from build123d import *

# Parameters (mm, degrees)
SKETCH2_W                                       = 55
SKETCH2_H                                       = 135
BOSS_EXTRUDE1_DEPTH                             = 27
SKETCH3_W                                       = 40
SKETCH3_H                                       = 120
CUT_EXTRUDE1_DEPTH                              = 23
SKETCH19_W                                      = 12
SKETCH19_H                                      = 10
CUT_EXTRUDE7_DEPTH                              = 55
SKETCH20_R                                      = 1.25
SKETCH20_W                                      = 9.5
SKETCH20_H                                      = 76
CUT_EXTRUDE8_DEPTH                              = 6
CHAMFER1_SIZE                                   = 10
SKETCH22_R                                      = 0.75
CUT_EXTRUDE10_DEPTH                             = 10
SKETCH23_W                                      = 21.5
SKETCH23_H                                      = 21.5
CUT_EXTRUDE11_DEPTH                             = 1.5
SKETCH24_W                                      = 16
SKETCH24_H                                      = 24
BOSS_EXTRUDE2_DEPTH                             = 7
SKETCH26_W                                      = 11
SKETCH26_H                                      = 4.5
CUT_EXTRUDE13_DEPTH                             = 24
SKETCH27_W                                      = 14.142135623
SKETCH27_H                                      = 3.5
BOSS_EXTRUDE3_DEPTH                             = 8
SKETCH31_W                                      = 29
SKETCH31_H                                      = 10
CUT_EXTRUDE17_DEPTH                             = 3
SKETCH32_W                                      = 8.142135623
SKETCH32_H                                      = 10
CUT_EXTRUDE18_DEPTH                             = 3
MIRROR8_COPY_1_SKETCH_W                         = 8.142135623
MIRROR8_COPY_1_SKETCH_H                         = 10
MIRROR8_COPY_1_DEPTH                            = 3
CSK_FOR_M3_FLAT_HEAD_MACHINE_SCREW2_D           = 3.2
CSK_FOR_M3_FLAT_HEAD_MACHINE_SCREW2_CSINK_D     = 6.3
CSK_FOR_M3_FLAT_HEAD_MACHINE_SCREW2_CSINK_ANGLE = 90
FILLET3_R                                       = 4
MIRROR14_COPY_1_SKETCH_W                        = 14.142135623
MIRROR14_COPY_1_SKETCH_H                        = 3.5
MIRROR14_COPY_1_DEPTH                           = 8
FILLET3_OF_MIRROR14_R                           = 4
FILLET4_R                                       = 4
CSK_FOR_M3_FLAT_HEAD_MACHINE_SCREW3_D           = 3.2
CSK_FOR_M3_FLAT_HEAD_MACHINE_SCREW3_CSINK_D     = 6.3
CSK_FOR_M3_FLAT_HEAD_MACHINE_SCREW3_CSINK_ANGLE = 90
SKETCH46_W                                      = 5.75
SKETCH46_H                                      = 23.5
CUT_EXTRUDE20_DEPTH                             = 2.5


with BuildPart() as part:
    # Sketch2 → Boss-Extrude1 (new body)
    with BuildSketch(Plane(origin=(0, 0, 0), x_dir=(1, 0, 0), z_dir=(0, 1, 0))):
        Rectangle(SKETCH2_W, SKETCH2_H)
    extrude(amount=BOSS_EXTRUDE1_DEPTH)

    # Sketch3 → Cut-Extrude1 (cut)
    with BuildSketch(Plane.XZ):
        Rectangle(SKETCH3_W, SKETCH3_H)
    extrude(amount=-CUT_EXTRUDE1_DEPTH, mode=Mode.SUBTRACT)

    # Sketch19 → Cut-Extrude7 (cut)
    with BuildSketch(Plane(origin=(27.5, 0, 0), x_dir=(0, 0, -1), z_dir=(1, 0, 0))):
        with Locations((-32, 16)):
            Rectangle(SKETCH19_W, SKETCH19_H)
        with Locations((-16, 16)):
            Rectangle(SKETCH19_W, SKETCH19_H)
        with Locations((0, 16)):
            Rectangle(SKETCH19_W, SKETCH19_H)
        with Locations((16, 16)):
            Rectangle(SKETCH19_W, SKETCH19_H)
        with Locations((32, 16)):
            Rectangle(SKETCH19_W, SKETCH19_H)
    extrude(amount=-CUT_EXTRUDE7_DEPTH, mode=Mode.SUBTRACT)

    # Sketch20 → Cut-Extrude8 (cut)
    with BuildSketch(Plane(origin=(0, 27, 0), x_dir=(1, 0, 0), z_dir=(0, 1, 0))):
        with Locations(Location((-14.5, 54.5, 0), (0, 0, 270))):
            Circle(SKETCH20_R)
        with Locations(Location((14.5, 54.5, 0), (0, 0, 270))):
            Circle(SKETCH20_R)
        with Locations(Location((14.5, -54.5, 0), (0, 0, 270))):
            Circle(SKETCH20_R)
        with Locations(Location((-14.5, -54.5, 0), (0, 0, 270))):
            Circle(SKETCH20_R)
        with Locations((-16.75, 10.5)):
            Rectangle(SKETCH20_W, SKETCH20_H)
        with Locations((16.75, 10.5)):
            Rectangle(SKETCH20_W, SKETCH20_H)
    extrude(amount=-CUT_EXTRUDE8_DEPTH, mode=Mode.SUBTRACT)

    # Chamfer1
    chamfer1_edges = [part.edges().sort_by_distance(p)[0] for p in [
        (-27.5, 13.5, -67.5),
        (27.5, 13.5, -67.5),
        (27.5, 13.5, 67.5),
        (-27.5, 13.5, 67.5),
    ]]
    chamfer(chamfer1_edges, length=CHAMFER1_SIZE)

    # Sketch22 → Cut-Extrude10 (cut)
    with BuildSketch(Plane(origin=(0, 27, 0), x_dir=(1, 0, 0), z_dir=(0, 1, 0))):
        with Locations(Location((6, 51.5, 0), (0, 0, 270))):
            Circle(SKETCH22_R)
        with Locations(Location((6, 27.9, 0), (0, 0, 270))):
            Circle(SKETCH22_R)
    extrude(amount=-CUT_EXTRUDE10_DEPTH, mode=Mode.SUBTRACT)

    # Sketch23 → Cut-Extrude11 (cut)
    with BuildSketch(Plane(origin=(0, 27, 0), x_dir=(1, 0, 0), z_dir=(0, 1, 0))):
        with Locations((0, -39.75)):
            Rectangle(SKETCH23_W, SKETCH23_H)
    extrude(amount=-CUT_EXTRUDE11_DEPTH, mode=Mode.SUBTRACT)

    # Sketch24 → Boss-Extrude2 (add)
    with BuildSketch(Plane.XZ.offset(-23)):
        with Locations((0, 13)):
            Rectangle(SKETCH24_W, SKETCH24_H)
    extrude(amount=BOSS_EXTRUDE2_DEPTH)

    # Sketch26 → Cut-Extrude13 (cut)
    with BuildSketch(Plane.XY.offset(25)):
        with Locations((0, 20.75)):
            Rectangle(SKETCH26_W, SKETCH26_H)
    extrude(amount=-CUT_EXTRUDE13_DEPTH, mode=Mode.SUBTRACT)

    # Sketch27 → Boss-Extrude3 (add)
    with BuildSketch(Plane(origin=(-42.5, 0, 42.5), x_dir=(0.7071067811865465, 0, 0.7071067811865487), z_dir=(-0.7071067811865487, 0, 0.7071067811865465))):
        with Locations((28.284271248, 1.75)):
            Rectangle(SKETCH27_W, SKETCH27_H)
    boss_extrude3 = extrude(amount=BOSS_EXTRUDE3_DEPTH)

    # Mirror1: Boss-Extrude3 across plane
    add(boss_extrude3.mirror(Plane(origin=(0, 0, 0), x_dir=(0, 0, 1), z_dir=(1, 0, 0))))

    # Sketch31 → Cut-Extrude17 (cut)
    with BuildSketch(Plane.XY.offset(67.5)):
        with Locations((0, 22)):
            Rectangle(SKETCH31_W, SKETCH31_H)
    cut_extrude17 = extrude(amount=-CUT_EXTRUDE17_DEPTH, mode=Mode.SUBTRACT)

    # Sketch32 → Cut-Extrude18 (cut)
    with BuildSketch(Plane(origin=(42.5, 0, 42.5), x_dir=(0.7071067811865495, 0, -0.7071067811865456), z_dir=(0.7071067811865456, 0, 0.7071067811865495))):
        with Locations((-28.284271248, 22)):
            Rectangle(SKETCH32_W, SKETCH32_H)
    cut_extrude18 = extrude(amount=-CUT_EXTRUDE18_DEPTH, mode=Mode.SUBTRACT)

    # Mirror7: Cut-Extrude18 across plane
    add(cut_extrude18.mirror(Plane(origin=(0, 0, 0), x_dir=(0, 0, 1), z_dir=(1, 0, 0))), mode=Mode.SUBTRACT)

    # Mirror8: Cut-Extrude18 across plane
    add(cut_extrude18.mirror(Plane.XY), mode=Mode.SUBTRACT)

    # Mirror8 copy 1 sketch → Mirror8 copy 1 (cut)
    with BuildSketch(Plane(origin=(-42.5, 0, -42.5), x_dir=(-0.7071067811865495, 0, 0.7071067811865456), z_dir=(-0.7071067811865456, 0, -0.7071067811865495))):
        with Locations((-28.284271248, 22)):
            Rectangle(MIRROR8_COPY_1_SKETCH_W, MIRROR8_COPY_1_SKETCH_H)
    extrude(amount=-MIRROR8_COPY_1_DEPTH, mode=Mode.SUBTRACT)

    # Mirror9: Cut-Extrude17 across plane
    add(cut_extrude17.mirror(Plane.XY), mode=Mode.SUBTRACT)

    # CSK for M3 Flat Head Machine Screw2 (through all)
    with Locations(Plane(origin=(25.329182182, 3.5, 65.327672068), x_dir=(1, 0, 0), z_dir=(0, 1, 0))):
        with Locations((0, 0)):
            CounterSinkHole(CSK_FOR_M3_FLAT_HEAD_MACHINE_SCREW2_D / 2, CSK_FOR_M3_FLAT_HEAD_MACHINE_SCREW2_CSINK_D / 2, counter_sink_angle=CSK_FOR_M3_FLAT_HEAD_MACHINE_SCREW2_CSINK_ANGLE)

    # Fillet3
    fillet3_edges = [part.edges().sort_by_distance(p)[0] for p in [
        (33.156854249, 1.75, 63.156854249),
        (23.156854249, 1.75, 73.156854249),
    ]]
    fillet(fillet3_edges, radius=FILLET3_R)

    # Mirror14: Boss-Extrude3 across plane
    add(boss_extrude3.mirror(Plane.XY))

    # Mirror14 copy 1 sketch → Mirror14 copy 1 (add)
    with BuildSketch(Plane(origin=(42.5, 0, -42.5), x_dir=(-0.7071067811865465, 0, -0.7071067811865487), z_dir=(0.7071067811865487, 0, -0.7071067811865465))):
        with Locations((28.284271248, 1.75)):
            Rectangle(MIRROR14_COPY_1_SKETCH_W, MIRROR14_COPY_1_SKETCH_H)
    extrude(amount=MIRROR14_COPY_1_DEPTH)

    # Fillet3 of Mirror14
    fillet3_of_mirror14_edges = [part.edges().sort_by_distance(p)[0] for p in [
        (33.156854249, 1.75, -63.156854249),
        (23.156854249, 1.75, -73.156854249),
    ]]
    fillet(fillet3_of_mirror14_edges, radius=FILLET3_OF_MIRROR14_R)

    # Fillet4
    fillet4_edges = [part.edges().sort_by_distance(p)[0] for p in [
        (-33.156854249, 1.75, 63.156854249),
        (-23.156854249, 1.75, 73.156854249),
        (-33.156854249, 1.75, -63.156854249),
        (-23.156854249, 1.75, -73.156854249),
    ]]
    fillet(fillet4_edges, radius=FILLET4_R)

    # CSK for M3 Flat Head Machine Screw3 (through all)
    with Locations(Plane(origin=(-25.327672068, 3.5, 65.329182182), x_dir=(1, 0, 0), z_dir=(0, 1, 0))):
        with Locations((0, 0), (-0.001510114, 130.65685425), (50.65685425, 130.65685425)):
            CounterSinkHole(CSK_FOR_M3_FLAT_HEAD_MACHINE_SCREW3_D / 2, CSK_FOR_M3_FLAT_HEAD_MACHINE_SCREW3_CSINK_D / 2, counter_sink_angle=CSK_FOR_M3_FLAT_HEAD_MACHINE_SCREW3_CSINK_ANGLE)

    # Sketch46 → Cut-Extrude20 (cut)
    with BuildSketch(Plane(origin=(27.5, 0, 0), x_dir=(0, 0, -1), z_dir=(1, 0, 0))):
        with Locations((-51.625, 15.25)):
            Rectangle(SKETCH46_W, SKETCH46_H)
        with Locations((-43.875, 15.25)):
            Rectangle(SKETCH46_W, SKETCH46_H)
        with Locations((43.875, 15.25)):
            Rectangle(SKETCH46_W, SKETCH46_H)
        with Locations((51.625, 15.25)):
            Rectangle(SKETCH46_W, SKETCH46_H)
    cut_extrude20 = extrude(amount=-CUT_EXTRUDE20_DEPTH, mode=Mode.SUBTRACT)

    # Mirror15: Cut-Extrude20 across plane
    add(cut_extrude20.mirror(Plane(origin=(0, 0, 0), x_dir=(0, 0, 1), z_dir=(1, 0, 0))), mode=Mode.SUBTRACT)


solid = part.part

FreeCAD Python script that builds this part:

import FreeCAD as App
import Part
import Sketcher
Q = App.Units.Quantity


def edges_at(feature, points):
    """Names of the edges that pass closest to the given points."""
    edges = feature.Shape.Edges
    near = lambda p: min(range(len(edges)), key=lambda i: edges[i].distToShape(Part.Vertex(*p))[0])
    return sorted({f"Edge{near(p) + 1}" for p in points})

doc = App.newDocument("Part")
body = doc.addObject("PartDesign::Body", "Body")

sketch1 = body.newObject("Sketcher::SketchObject", "Sketch")
sketch1.AttachmentSupport = (doc.getObject("XZ_Plane"), [""])
sketch1.MapMode = "FlatFace"
sketch1.addGeometry(Part.LineSegment(App.Vector(-28, -68, 0), App.Vector(-28, 68, 0)), False)
sketch1.addGeometry(Part.LineSegment(App.Vector(-28, 68, 0), App.Vector(28, 68, 0)), False)
sketch1.addGeometry(Part.LineSegment(App.Vector(28, 68, 0), App.Vector(28, -68, 0)), False)
sketch1.addGeometry(Part.LineSegment(App.Vector(28, -68, 0), App.Vector(-28, -68, 0)), False)
sketch1.addConstraint(Sketcher.Constraint("Coincident", 0, 2, 1, 1))
sketch1.addConstraint(Sketcher.Constraint("Coincident", 1, 2, 2, 1))
sketch1.addConstraint(Sketcher.Constraint("Coincident", 2, 2, 3, 1))
sketch1.addConstraint(Sketcher.Constraint("Coincident", 3, 2, 0, 1))
sketch1.addConstraint(Sketcher.Constraint("Vertical", 0))
sketch1.addConstraint(Sketcher.Constraint("Horizontal", 1))
sketch1.addConstraint(Sketcher.Constraint("Vertical", 2))
sketch1.addConstraint(Sketcher.Constraint("Horizontal", 3))
sketch1.addConstraint(Sketcher.Constraint("Symmetric", 0, 2, 2, 2, -1, 1))
sketch1.addConstraint(Sketcher.Constraint("DistanceX", 1, 1, 1, 2, Q("55 mm")))
sketch1.addConstraint(Sketcher.Constraint("DistanceY", 0, 1, 0, 2, Q("135 mm")))
pad1 = body.newObject("PartDesign::Pad", "Pad")
pad1.Profile = sketch1
pad1.Length = 27
pad1.Reversed = True

sketch2 = body.newObject("Sketcher::SketchObject", "Sketch001")
sketch2.AttachmentSupport = (doc.getObject("XZ_Plane"), [""])
sketch2.MapMode = "FlatFace"
sketch2.addGeometry(Part.LineSegment(App.Vector(-20, 60, 0), App.Vector(-20, -60, 0)), False)
sketch2.addGeometry(Part.LineSegment(App.Vector(-20, -60, 0), App.Vector(20, -60, 0)), False)
sketch2.addGeometry(Part.LineSegment(App.Vector(20, -60, 0), App.Vector(20, 60, 0)), False)
sketch2.addGeometry(Part.LineSegment(App.Vector(20, 60, 0), App.Vector(-20, 60, 0)), False)
sketch2.addConstraint(Sketcher.Constraint("Coincident", 0, 2, 1, 1))
sketch2.addConstraint(Sketcher.Constraint("Coincident", 1, 2, 2, 1))
sketch2.addConstraint(Sketcher.Constraint("Coincident", 2, 2, 3, 1))
sketch2.addConstraint(Sketcher.Constraint("Coincident", 3, 2, 0, 1))
sketch2.addConstraint(Sketcher.Constraint("Vertical", 0))
sketch2.addConstraint(Sketcher.Constraint("Horizontal", 1))
sketch2.addConstraint(Sketcher.Constraint("Vertical", 2))
sketch2.addConstraint(Sketcher.Constraint("Horizontal", 3))
sketch2.addConstraint(Sketcher.Constraint("Symmetric", 0, 2, 2, 2, -1, 1))
sketch2.addConstraint(Sketcher.Constraint("DistanceX", 1, 1, 1, 2, Q("40 mm")))
sketch2.addConstraint(Sketcher.Constraint("DistanceY", 0, 2, 0, 1, Q("120 mm")))
pocket1 = body.newObject("PartDesign::Pocket", "Pocket")
pocket1.Profile = sketch2
pocket1.Length = 23

sketch3 = body.newObject("Sketcher::SketchObject", "Sketch002")
sketch3.AttachmentSupport = (doc.getObject("YZ_Plane"), [""])
sketch3.MapMode = "FlatFace"
sketch3.AttachmentOffset = App.Placement(App.Vector(0, 0, 27.5), App.Rotation())
sketch3.addGeometry(Part.LineSegment(App.Vector(21, 38, 0), App.Vector(11, 38, 0)), False)
sketch3.addGeometry(Part.LineSegment(App.Vector(11, 38, 0), App.Vector(11, 26, 0)), False)
sketch3.addGeometry(Part.LineSegment(App.Vector(11, 26, 0), App.Vector(21, 26, 0)), False)
sketch3.addGeometry(Part.LineSegment(App.Vector(21, 26, 0), App.Vector(21, 38, 0)), False)
sketch3.addGeometry(Part.LineSegment(App.Vector(21, 22, 0), App.Vector(11, 22, 0)), False)
sketch3.addGeometry(Part.LineSegment(App.Vector(11, 22, 0), App.Vector(11, 10, 0)), False)
sketch3.addGeometry(Part.LineSegment(App.Vector(11, 10, 0), App.Vector(21, 10, 0)), False)
sketch3.addGeometry(Part.LineSegment(App.Vector(21, 10, 0), App.Vector(21, 22, 0)), False)
sketch3.addGeometry(Part.LineSegment(App.Vector(21, 6, 0), App.Vector(11, 6, 0)), False)
sketch3.addGeometry(Part.LineSegment(App.Vector(11, 6, 0), App.Vector(11, -6, 0)), False)
sketch3.addGeometry(Part.LineSegment(App.Vector(11, -6, 0), App.Vector(21, -6, 0)), False)
sketch3.addGeometry(Part.LineSegment(App.Vector(21, -6, 0), App.Vector(21, 6, 0)), False)
sketch3.addGeometry(Part.LineSegment(App.Vector(21, -10, 0), App.Vector(11, -10, 0)), False)
sketch3.addGeometry(Part.LineSegment(App.Vector(11, -10, 0), App.Vector(11, -22, 0)), False)
sketch3.addGeometry(Part.LineSegment(App.Vector(11, -22, 0), App.Vector(21, -22, 0)), False)
sketch3.addGeometry(Part.LineSegment(App.Vector(21, -22, 0), App.Vector(21, -10, 0)), False)
sketch3.addGeometry(Part.LineSegment(App.Vector(21, -26, 0), App.Vector(11, -26, 0)), False)
sketch3.addGeometry(Part.LineSegment(App.Vector(11, -26, 0), App.Vector(11, -38, 0)), False)
sketch3.addGeometry(Part.LineSegment(App.Vector(11, -38, 0), App.Vector(21, -38, 0)), False)
sketch3.addGeometry(Part.LineSegment(App.Vector(21, -38, 0), App.Vector(21, -26, 0)), False)
sketch3.addConstraint(Sketcher.Constraint("Coincident", 0, 2, 1, 1))
sketch3.addConstraint(Sketcher.Constraint("Coincident", 1, 2, 2, 1))
sketch3.addConstraint(Sketcher.Constraint("Coincident", 2, 2, 3, 1))
sketch3.addConstraint(Sketcher.Constraint("Coincident", 3, 2, 0, 1))
sketch3.addConstraint(Sketcher.Constraint("Coincident", 4, 2, 5, 1))
sketch3.addConstraint(Sketcher.Constraint("Coincident", 5, 2, 6, 1))
sketch3.addConstraint(Sketcher.Constraint("Coincident", 6, 2, 7, 1))
sketch3.addConstraint(Sketcher.Constraint("Coincident", 7, 2, 4, 1))
sketch3.addConstraint(Sketcher.Constraint("Coincident", 8, 2, 9, 1))
sketch3.addConstraint(Sketcher.Constraint("Coincident", 9, 2, 10, 1))
sketch3.addConstraint(Sketcher.Constraint("Coincident", 10, 2, 11, 1))
sketch3.addConstraint(Sketcher.Constraint("Coincident", 11, 2, 8, 1))
sketch3.addConstraint(Sketcher.Constraint("Coincident", 12, 2, 13, 1))
sketch3.addConstraint(Sketcher.Constraint("Coincident", 13, 2, 14, 1))
sketch3.addConstraint(Sketcher.Constraint("Coincident", 14, 2, 15, 1))
sketch3.addConstraint(Sketcher.Constraint("Coincident", 15, 2, 12, 1))
sketch3.addConstraint(Sketcher.Constraint("Coincident", 16, 2, 17, 1))
sketch3.addConstraint(Sketcher.Constraint("Coincident", 17, 2, 18, 1))
sketch3.addConstraint(Sketcher.Constraint("Coincident", 18, 2, 19, 1))
sketch3.addConstraint(Sketcher.Constraint("Coincident", 19, 2, 16, 1))
sketch3.addConstraint(Sketcher.Constraint("Horizontal", 0))
sketch3.addConstraint(Sketcher.Constraint("Vertical", 1))
sketch3.addConstraint(Sketcher.Constraint("Horizontal", 2))
sketch3.addConstraint(Sketcher.Constraint("Vertical", 3))
sketch3.addConstraint(Sketcher.Constraint("Horizontal", 4))
sketch3.addConstraint(Sketcher.Constraint("Vertical", 5))
sketch3.addConstraint(Sketcher.Constraint("Horizontal", 6))
sketch3.addConstraint(Sketcher.Constraint("Vertical", 7))
sketch3.addConstraint(Sketcher.Constraint("Horizontal", 8))
sketch3.addConstraint(Sketcher.Constraint("Vertical", 9))
sketch3.addConstraint(Sketcher.Constraint("Horizontal", 10))
sketch3.addConstraint(Sketcher.Constraint("Vertical", 11))
sketch3.addConstraint(Sketcher.Constraint("Horizontal", 12))
sketch3.addConstraint(Sketcher.Constraint("Vertical", 13))
sketch3.addConstraint(Sketcher.Constraint("Horizontal", 14))
sketch3.addConstraint(Sketcher.Constraint("Vertical", 15))
sketch3.addConstraint(Sketcher.Constraint("Horizontal", 16))
sketch3.addConstraint(Sketcher.Constraint("Vertical", 17))
sketch3.addConstraint(Sketcher.Constraint("Horizontal", 18))
sketch3.addConstraint(Sketcher.Constraint("Vertical", 19))
sketch3.addConstraint(Sketcher.Constraint("Symmetric", 5, 2, 12, 2, -1))
sketch3.addConstraint(Sketcher.Constraint("Symmetric", 7, 2, 14, 2, -1))
sketch3.addConstraint(Sketcher.Constraint("Symmetric", 1, 2, 16, 2, -1))
sketch3.addConstraint(Sketcher.Constraint("Symmetric", 3, 2, 18, 2, -1))
sketch3.addConstraint(Sketcher.Constraint("Vertical", 1, 2, 4, 2))
sketch3.addConstraint(Sketcher.Constraint("Vertical", 3, 2, 6, 2))
sketch3.addConstraint(Sketcher.Constraint("Vertical", 5, 2, 8, 2))
sketch3.addConstraint(Sketcher.Constraint("Vertical", 7, 2, 10, 2))
sketch3.addConstraint(Sketcher.Constraint("Equal", 3, 5))
sketch3.addConstraint(Sketcher.Constraint("Equal", 7, 9))
sketch3.addConstraint(Sketcher.Constraint("DistanceX", 0, 2, 0, 1, Q("10 mm")))
sketch3.addConstraint(Sketcher.Constraint("DistanceY", 1, 2, 1, 1, Q("12 mm")))
sketch3.addConstraint(Sketcher.Constraint("DistanceX", -1, 1, 0, 2, Q("11 mm")))
sketch3.addConstraint(Sketcher.Constraint("DistanceY", -1, 1, 0, 2, Q("38 mm")))
sketch3.addConstraint(Sketcher.Constraint("DistanceY", -1, 1, 4, 2, Q("22 mm")))
sketch3.addConstraint(Sketcher.Constraint("DistanceY", -1, 1, 8, 2, Q("6 mm")))
pocket2 = body.newObject("PartDesign::Pocket", "Pocket001")
pocket2.Profile = sketch3
pocket2.Length = 55

sketch4 = body.newObject("Sketcher::SketchObject", "Sketch003")
sketch4.AttachmentSupport = (doc.getObject("XZ_Plane"), [""])
sketch4.MapMode = "FlatFace"
sketch4.AttachmentOffset = App.Placement(App.Vector(0, 0, -27), App.Rotation())
sketch4.addGeometry(Part.Circle(App.Vector(-14.5, -54.5, 0), App.Vector(0, 0, 1), 1.2), False)
sketch4.addGeometry(Part.Circle(App.Vector(14.5, -54.5, 0), App.Vector(0, 0, 1), 1.2), False)
sketch4.addGeometry(Part.Circle(App.Vector(14.5, 54.5, 0), App.Vector(0, 0, 1), 1.2), False)
sketch4.addGeometry(Part.Circle(App.Vector(-14.5, 54.5, 0), App.Vector(0, 0, 1), 1.2), False)
sketch4.addGeometry(Part.LineSegment(App.Vector(-21.5, -48.5, 0), App.Vector(-21.5, 27.5, 0)), False)
sketch4.addGeometry(Part.LineSegment(App.Vector(-21.5, 27.5, 0), App.Vector(-12, 27.5, 0)), False)
sketch4.addGeometry(Part.LineSegment(App.Vector(-12, 27.5, 0), App.Vector(-12, -48.5, 0)), False)
sketch4.addGeometry(Part.LineSegment(App.Vector(-12, -48.5, 0), App.Vector(-21.5, -48.5, 0)), False)
sketch4.addGeometry(Part.LineSegment(App.Vector(12, -48.5, 0), App.Vector(12, 27.5, 0)), False)
sketch4.addGeometry(Part.LineSegment(App.Vector(12, 27.5, 0), App.Vector(21.5, 27.5, 0)), False)
sketch4.addGeometry(Part.LineSegment(App.Vector(21.5, 27.5, 0), App.Vector(21.5, -48.5, 0)), False)
sketch4.addGeometry(Part.LineSegment(App.Vector(21.5, -48.5, 0), App.Vector(12, -48.5, 0)), False)
sketch4.addConstraint(Sketcher.Constraint("Coincident", 4, 2, 5, 1))
sketch4.addConstraint(Sketcher.Constraint("Coincident", 5, 2, 6, 1))
sketch4.addConstraint(Sketcher.Constraint("Coincident", 6, 2, 7, 1))
sketch4.addConstraint(Sketcher.Constraint("Coincident", 7, 2, 4, 1))
sketch4.addConstraint(Sketcher.Constraint("Coincident", 8, 2, 9, 1))
sketch4.addConstraint(Sketcher.Constraint("Coincident", 9, 2, 10, 1))
sketch4.addConstraint(Sketcher.Constraint("Coincident", 10, 2, 11, 1))
sketch4.addConstraint(Sketcher.Constraint("Coincident", 11, 2, 8, 1))
sketch4.addConstraint(Sketcher.Constraint("Vertical", 4))
sketch4.addConstraint(Sketcher.Constraint("Horizontal", 5))
sketch4.addConstraint(Sketcher.Constraint("Vertical", 6))
sketch4.addConstraint(Sketcher.Constraint("Horizontal", 7))
sketch4.addConstraint(Sketcher.Constraint("Vertical", 8))
sketch4.addConstraint(Sketcher.Constraint("Horizontal", 9))
sketch4.addConstraint(Sketcher.Constraint("Vertical", 10))
sketch4.addConstraint(Sketcher.Constraint("Horizontal", 11))
sketch4.addConstraint(Sketcher.Constraint("Equal", 0, 1))
sketch4.addConstraint(Sketcher.Constraint("Equal", 1, 2))
sketch4.addConstraint(Sketcher.Constraint("Equal", 2, 3))
sketch4.addConstraint(Sketcher.Constraint("Symmetric", 0, 3, 2, 3, -1, 1))
sketch4.addConstraint(Sketcher.Constraint("Symmetric", 1, 3, 3, 3, -1, 1))
sketch4.addConstraint(Sketcher.Constraint("Symmetric", 0, 3, 1, 3, -2))
sketch4.addConstraint(Sketcher.Constraint("Symmetric", 5, 2, 8, 2, -2))
sketch4.addConstraint(Sketcher.Constraint("Symmetric", 7, 2, 10, 2, -2))
sketch4.addConstraint(Sketcher.Constraint("Diameter", 0, Q("2.5 mm")))
sketch4.addConstraint(Sketcher.Constraint("DistanceY", 4, 1, 4, 2, Q("76 mm")))
sketch4.addConstraint(Sketcher.Constraint("DistanceX", 5, 1, 5, 2, Q("9.5 mm")))
sketch4.addConstraint(Sketcher.Constraint("DistanceX", 5, 2, -1, 1, Q("12 mm")))
sketch4.addConstraint(Sketcher.Constraint("DistanceX", 0, 3, 1, 3, Q("29 mm")))
sketch4.addConstraint(Sketcher.Constraint("DistanceY", 1, 3, 2, 3, Q("109 mm")))
sketch4.addConstraint(Sketcher.Constraint("DistanceY", 4, 2, 3, 3, Q("27 mm")))
pocket3 = body.newObject("PartDesign::Pocket", "Pocket002")
pocket3.Profile = sketch4
pocket3.Length = 6
pocket3.Reversed = True
doc.recompute()

chamfer = body.newObject("PartDesign::Chamfer", "Chamfer")
chamfer.Base = (pocket3, edges_at(pocket3, [
    (-27.5, 13.5, -67.5),
    (27.5, 13.5, -67.5),
    (27.5, 13.5, 67.5),
    (-27.5, 13.5, 67.5),
]))
chamfer.Size = 10

sketch5 = body.newObject("Sketcher::SketchObject", "Sketch004")
sketch5.AttachmentSupport = (doc.getObject("XZ_Plane"), [""])
sketch5.MapMode = "FlatFace"
sketch5.AttachmentOffset = App.Placement(App.Vector(0, 0, -27), App.Rotation())
sketch5.addGeometry(Part.Circle(App.Vector(6, -51.5, 0), App.Vector(0, 0, 1), 0.8), False)
sketch5.addGeometry(Part.Circle(App.Vector(6, -27.9, 0), App.Vector(0, 0, 1), 0.8), False)
sketch5.addConstraint(Sketcher.Constraint("Equal", 0, 1))
sketch5.addConstraint(Sketcher.Constraint("Vertical", 0, 3, 1, 3))
sketch5.addConstraint(Sketcher.Constraint("Diameter", 0, Q("1.5 mm")))
sketch5.addConstraint(Sketcher.Constraint("DistanceX", -1, 1, 0, 3, Q("6 mm")))
sketch5.addConstraint(Sketcher.Constraint("DistanceY", 0, 3, -1, 1, Q("51.5 mm")))
sketch5.addConstraint(Sketcher.Constraint("DistanceY", 1, 3, -1, 1, Q("27.9 mm")))
pocket4 = body.newObject("PartDesign::Pocket", "Pocket003")
pocket4.Profile = sketch5
pocket4.Length = 10
pocket4.Reversed = True

sketch6 = body.newObject("Sketcher::SketchObject", "Sketch005")
sketch6.AttachmentSupport = (doc.getObject("XZ_Plane"), [""])
sketch6.MapMode = "FlatFace"
sketch6.AttachmentOffset = App.Placement(App.Vector(0, 0, -27), App.Rotation())
sketch6.addGeometry(Part.LineSegment(App.Vector(-11, 29, 0), App.Vector(-11, 50, 0)), False)
sketch6.addGeometry(Part.LineSegment(App.Vector(-11, 50, 0), App.Vector(11, 50, 0)), False)
sketch6.addGeometry(Part.LineSegment(App.Vector(11, 50, 0), App.Vector(11, 29, 0)), False)
sketch6.addGeometry(Part.LineSegment(App.Vector(11, 29, 0), App.Vector(-11, 29, 0)), False)
sketch6.addConstraint(Sketcher.Constraint("Coincident", 0, 2, 1, 1))
sketch6.addConstraint(Sketcher.Constraint("Coincident", 1, 2, 2, 1))
sketch6.addConstraint(Sketcher.Constraint("Coincident", 2, 2, 3, 1))
sketch6.addConstraint(Sketcher.Constraint("Coincident", 3, 2, 0, 1))
sketch6.addConstraint(Sketcher.Constraint("Vertical", 0))
sketch6.addConstraint(Sketcher.Constraint("Horizontal", 1))
sketch6.addConstraint(Sketcher.Constraint("Vertical", 2))
sketch6.addConstraint(Sketcher.Constraint("Horizontal", 3))
sketch6.addConstraint(Sketcher.Constraint("Equal", 3, 0))
sketch6.addConstraint(Sketcher.Constraint("DistanceX", 1, 1, 1, 2, Q("21.5 mm")))
sketch6.addConstraint(Sketcher.Constraint("DistanceY", -1, 1, 2, 2, Q("29 mm")))
sketch6.addConstraint(Sketcher.Constraint("DistanceX", 0, 2, -1, 1, Q("10.75 mm")))
pocket5 = body.newObject("PartDesign::Pocket", "Pocket004")
pocket5.Profile = sketch6
pocket5.Length = 1.5
pocket5.Reversed = True

sketch7 = body.newObject("Sketcher::SketchObject", "Sketch006")
sketch7.AttachmentSupport = (doc.getObject("XZ_Plane"), [""])
sketch7.MapMode = "FlatFace"
sketch7.AttachmentOffset = App.Placement(App.Vector(0, 0, -23), App.Rotation())
sketch7.addGeometry(Part.LineSegment(App.Vector(-8, 25, 0), App.Vector(-8, 1, 0)), False)
sketch7.addGeometry(Part.LineSegment(App.Vector(-8, 1, 0), App.Vector(8, 1, 0)), False)
sketch7.addGeometry(Part.LineSegment(App.Vector(8, 1, 0), App.Vector(8, 25, 0)), False)
sketch7.addGeometry(Part.LineSegment(App.Vector(8, 25, 0), App.Vector(-8, 25, 0)), False)
sketch7.addConstraint(Sketcher.Constraint("Coincident", 0, 2, 1, 1))
sketch7.addConstraint(Sketcher.Constraint("Coincident", 1, 2, 2, 1))
sketch7.addConstraint(Sketcher.Constraint("Coincident", 2, 2, 3, 1))
sketch7.addConstraint(Sketcher.Constraint("Coincident", 3, 2, 0, 1))
sketch7.addConstraint(Sketcher.Constraint("Vertical", 0))
sketch7.addConstraint(Sketcher.Constraint("Horizontal", 1))
sketch7.addConstraint(Sketcher.Constraint("Vertical", 2))
sketch7.addConstraint(Sketcher.Constraint("Horizontal", 3))
sketch7.addConstraint(Sketcher.Constraint("DistanceX", 1, 1, 1, 2, Q("16 mm")))
sketch7.addConstraint(Sketcher.Constraint("DistanceY", 0, 2, 0, 1, Q("24 mm")))
sketch7.addConstraint(Sketcher.Constraint("DistanceX", 0, 2, -1, 1, Q("8 mm")))
sketch7.addConstraint(Sketcher.Constraint("DistanceY", -1, 1, 0, 2, Q("1 mm")))
pad2 = body.newObject("PartDesign::Pad", "Pad001")
pad2.Profile = sketch7
pad2.Length = 7

sketch8 = body.newObject("Sketcher::SketchObject", "Sketch007")
sketch8.AttachmentSupport = (doc.getObject("XY_Plane"), [""])
sketch8.MapMode = "FlatFace"
sketch8.AttachmentOffset = App.Placement(App.Vector(0, 0, 25), App.Rotation())
sketch8.addGeometry(Part.LineSegment(App.Vector(-5.5, 23, 0), App.Vector(-5.5, 18.5, 0)), False)
sketch8.addGeometry(Part.LineSegment(App.Vector(-5.5, 18.5, 0), App.Vector(5.5, 18.5, 0)), False)
sketch8.addGeometry(Part.LineSegment(App.Vector(5.5, 18.5, 0), App.Vector(5.5, 23, 0)), False)
sketch8.addGeometry(Part.LineSegment(App.Vector(5.5, 23, 0), App.Vector(-5.5, 23, 0)), False)
sketch8.addConstraint(Sketcher.Constraint("Coincident", 0, 2, 1, 1))
sketch8.addConstraint(Sketcher.Constraint("Coincident", 1, 2, 2, 1))
sketch8.addConstraint(Sketcher.Constraint("Coincident", 2, 2, 3, 1))
sketch8.addConstraint(Sketcher.Constraint("Coincident", 3, 2, 0, 1))
sketch8.addConstraint(Sketcher.Constraint("Vertical", 0))
sketch8.addConstraint(Sketcher.Constraint("Horizontal", 1))
sketch8.addConstraint(Sketcher.Constraint("Vertical", 2))
sketch8.addConstraint(Sketcher.Constraint("Horizontal", 3))
sketch8.addConstraint(Sketcher.Constraint("DistanceX", 1, 1, 1, 2, Q("11 mm")))
sketch8.addConstraint(Sketcher.Constraint("DistanceY", 0, 2, 0, 1, Q("4.5 mm")))
sketch8.addConstraint(Sketcher.Constraint("DistanceY", -1, 1, 2, 2, Q("23 mm")))
sketch8.addConstraint(Sketcher.Constraint("DistanceX", 0, 2, -1, 1, Q("5.5 mm")))
pocket6 = body.newObject("PartDesign::Pocket", "Pocket005")
pocket6.Profile = sketch8
pocket6.Length = 24

sketch9 = body.newObject("Sketcher::SketchObject", "Sketch008")
sketch9.Placement = App.Placement(App.Vector(-42.5, 0, 42.5), App.Rotation(App.Vector(0.707106781, 0, 0.707106781), App.Vector(0, 0.999999999, 0), App.Vector(-0.707106781, 0, 0.707106781), "ZXY"))
sketch9.addGeometry(Part.LineSegment(App.Vector(21.2, 3.5, 0), App.Vector(21.2, 0, 0)), False)
sketch9.addGeometry(Part.LineSegment(App.Vector(21.2, 0, 0), App.Vector(35.4, 0, 0)), False)
sketch9.addGeometry(Part.LineSegment(App.Vector(35.4, 0, 0), App.Vector(35.4, 3.5, 0)), False)
sketch9.addGeometry(Part.LineSegment(App.Vector(35.4, 3.5, 0), App.Vector(21.2, 3.5, 0)), False)
sketch9.addConstraint(Sketcher.Constraint("Coincident", 0, 2, 1, 1))
sketch9.addConstraint(Sketcher.Constraint("Coincident", 1, 2, 2, 1))
sketch9.addConstraint(Sketcher.Constraint("Coincident", 2, 2, 3, 1))
sketch9.addConstraint(Sketcher.Constraint("Coincident", 3, 2, 0, 1))
sketch9.addConstraint(Sketcher.Constraint("Vertical", 0))
sketch9.addConstraint(Sketcher.Constraint("Horizontal", 1))
sketch9.addConstraint(Sketcher.Constraint("Vertical", 2))
sketch9.addConstraint(Sketcher.Constraint("Horizontal", 3))
sketch9.addConstraint(Sketcher.Constraint("PointOnObject", 0, 2, -1))
sketch9.addConstraint(Sketcher.Constraint("DistanceY", 0, 2, 0, 1, Q("3.5 mm")))
sketch9.addConstraint(Sketcher.Constraint("DistanceX", 1, 1, 1, 2, Q("14.142136 mm")))
sketch9.addConstraint(Sketcher.Constraint("DistanceX", -1, 1, 1, 2, Q("35.355339 mm")))
pad3 = body.newObject("PartDesign::Pad", "Pad002")
pad3.Profile = sketch9
pad3.Length = 8
doc.recompute()

mirrored = body.newObject("PartDesign::Mirrored", "Mirrored")
mirrored.Originals = [pad3]
mirrored.MirrorPlane = (doc.getObject("YZ_Plane"), [""])
body.Tip = mirrored

sketch10 = body.newObject("Sketcher::SketchObject", "Sketch009")
sketch10.AttachmentSupport = (doc.getObject("XY_Plane"), [""])
sketch10.MapMode = "FlatFace"
sketch10.AttachmentOffset = App.Placement(App.Vector(0, 0, 67.5), App.Rotation())
sketch10.addGeometry(Part.LineSegment(App.Vector(-14, 27, 0), App.Vector(-14, 17, 0)), False)
sketch10.addGeometry(Part.LineSegment(App.Vector(-14, 17, 0), App.Vector(14, 17, 0)), False)
sketch10.addGeometry(Part.LineSegment(App.Vector(14, 17, 0), App.Vector(14, 27, 0)), False)
sketch10.addGeometry(Part.LineSegment(App.Vector(14, 27, 0), App.Vector(-14, 27, 0)), False)
sketch10.addConstraint(Sketcher.Constraint("Coincident", 0, 2, 1, 1))
sketch10.addConstraint(Sketcher.Constraint("Coincident", 1, 2, 2, 1))
sketch10.addConstraint(Sketcher.Constraint("Coincident", 2, 2, 3, 1))
sketch10.addConstraint(Sketcher.Constraint("Coincident", 3, 2, 0, 1))
sketch10.addConstraint(Sketcher.Constraint("Vertical", 0))
sketch10.addConstraint(Sketcher.Constraint("Horizontal", 1))
sketch10.addConstraint(Sketcher.Constraint("Vertical", 2))
sketch10.addConstraint(Sketcher.Constraint("Horizontal", 3))
sketch10.addConstraint(Sketcher.Constraint("DistanceX", 1, 1, 1, 2, Q("29 mm")))
sketch10.addConstraint(Sketcher.Constraint("DistanceY", 0, 2, 0, 1, Q("10 mm")))
sketch10.addConstraint(Sketcher.Constraint("DistanceY", -1, 1, 0, 2, Q("17 mm")))
sketch10.addConstraint(Sketcher.Constraint("DistanceX", 0, 2, -1, 1, Q("14.5 mm")))
pocket7 = body.newObject("PartDesign::Pocket", "Pocket006")
pocket7.Profile = sketch10
pocket7.Length = 3

sketch11 = body.newObject("Sketcher::SketchObject", "Sketch010")
sketch11.Placement = App.Placement(App.Vector(42.5, 0, 42.5), App.Rotation(App.Vector(0.707106781, 0, -0.707106781), App.Vector(0, 0.999999999, 0), App.Vector(0.707106781, 0, 0.707106781), "ZXY"))
sketch11.addGeometry(Part.LineSegment(App.Vector(-32, 27, 0), App.Vector(-32, 17, 0)), False)
sketch11.addGeometry(Part.LineSegment(App.Vector(-32, 17, 0), App.Vector(-24, 17, 0)), False)
sketch11.addGeometry(Part.LineSegment(App.Vector(-24, 17, 0), App.Vector(-24, 27, 0)), False)
sketch11.addGeometry(Part.LineSegment(App.Vector(-24, 27, 0), App.Vector(-32, 27, 0)), False)
sketch11.addConstraint(Sketcher.Constraint("Coincident", 0, 2, 1, 1))
sketch11.addConstraint(Sketcher.Constraint("Coincident", 1, 2, 2, 1))
sketch11.addConstraint(Sketcher.Constraint("Coincident", 2, 2, 3, 1))
sketch11.addConstraint(Sketcher.Constraint("Coincident", 3, 2, 0, 1))
sketch11.addConstraint(Sketcher.Constraint("Vertical", 0))
sketch11.addConstraint(Sketcher.Constraint("Horizontal", 1))
sketch11.addConstraint(Sketcher.Constraint("Vertical", 2))
sketch11.addConstraint(Sketcher.Constraint("Horizontal", 3))
sketch11.addConstraint(Sketcher.Constraint("DistanceY", 0, 2, 0, 1, Q("10 mm")))
sketch11.addConstraint(Sketcher.Constraint("DistanceY", -1, 1, 0, 2, Q("17 mm")))
sketch11.addConstraint(Sketcher.Constraint("DistanceX", 1, 1, 1, 2, Q("8.142136 mm")))
sketch11.addConstraint(Sketcher.Constraint("DistanceX", 0, 2, -1, 1, Q("32.355339 mm")))
pocket8 = body.newObject("PartDesign::Pocket", "Pocket007")
pocket8.Profile = sketch11
pocket8.Length = 3
doc.recompute()

mirrored2 = body.newObject("PartDesign::Mirrored", "Mirrored001")
mirrored2.Originals = [pocket8]
mirrored2.MirrorPlane = (doc.getObject("YZ_Plane"), [""])
body.Tip = mirrored2
doc.recompute()

mirrored3 = body.newObject("PartDesign::Mirrored", "Mirrored002")
mirrored3.Originals = [pocket8]
mirrored3.MirrorPlane = (doc.getObject("XY_Plane"), [""])
body.Tip = mirrored3

sketch12 = body.newObject("Sketcher::SketchObject", "Sketch011")
sketch12.Placement = App.Placement(App.Vector(-42.5, 0, -42.5), App.Rotation(App.Vector(-0.707106781, 0, 0.707106781), App.Vector(0, 0.999999999, 0), App.Vector(-0.707106781, 0, -0.707106781), "ZXY"))
sketch12.addGeometry(Part.LineSegment(App.Vector(-32, 27, 0), App.Vector(-32, 17, 0)), False)
sketch12.addGeometry(Part.LineSegment(App.Vector(-32, 17, 0), App.Vector(-24, 17, 0)), False)
sketch12.addGeometry(Part.LineSegment(App.Vector(-24, 17, 0), App.Vector(-24, 27, 0)), False)
sketch12.addGeometry(Part.LineSegment(App.Vector(-24, 27, 0), App.Vector(-32, 27, 0)), False)
sketch12.addConstraint(Sketcher.Constraint("Coincident", 0, 2, 1, 1))
sketch12.addConstraint(Sketcher.Constraint("Coincident", 1, 2, 2, 1))
sketch12.addConstraint(Sketcher.Constraint("Coincident", 2, 2, 3, 1))
sketch12.addConstraint(Sketcher.Constraint("Coincident", 3, 2, 0, 1))
sketch12.addConstraint(Sketcher.Constraint("Vertical", 0))
sketch12.addConstraint(Sketcher.Constraint("Horizontal", 1))
sketch12.addConstraint(Sketcher.Constraint("Vertical", 2))
sketch12.addConstraint(Sketcher.Constraint("Horizontal", 3))
sketch12.addConstraint(Sketcher.Constraint("DistanceY", 0, 2, 0, 1, Q("10 mm")))
sketch12.addConstraint(Sketcher.Constraint("DistanceY", -1, 1, 0, 2, Q("17 mm")))
sketch12.addConstraint(Sketcher.Constraint("DistanceX", 1, 1, 1, 2, Q("8.142136 mm")))
sketch12.addConstraint(Sketcher.Constraint("DistanceX", 0, 2, -1, 1, Q("32.355339 mm")))
pocket9 = body.newObject("PartDesign::Pocket", "Pocket008")
pocket9.Profile = sketch12
pocket9.Length = 3
doc.recompute()

mirrored4 = body.newObject("PartDesign::Mirrored", "Mirrored003")
mirrored4.Originals = [pocket7]
mirrored4.MirrorPlane = (doc.getObject("XY_Plane"), [""])
body.Tip = mirrored4

sketch13 = body.newObject("Sketcher::SketchObject", "Sketch012")
sketch13.AttachmentSupport = (doc.getObject("XZ_Plane"), [""])
sketch13.MapMode = "FlatFace"
sketch13.AttachmentOffset = App.Placement(App.Vector(0, 0, -3.5), App.Rotation())
sketch13.addGeometry(Part.Circle(App.Vector(25.3, 65.3, 0), App.Vector(0, 0, 1), 1.6), False)
sketch13.addConstraint(Sketcher.Constraint("Diameter", 0, Q("3.2 mm")))
sketch13.addConstraint(Sketcher.Constraint("DistanceX", -1, 1, 0, 3, Q("25.329182 mm")))
sketch13.addConstraint(Sketcher.Constraint("DistanceY", -1, 1, 0, 3, Q("65.327672 mm")))
doc.recompute()
hole = body.newObject("PartDesign::Hole", "Hole")
hole.Profile = sketch13
hole.ThreadType = "None"
hole.Diameter = 3.2
hole.DepthType = "ThroughAll"
hole.HoleCutType = "Countersink"
hole.HoleCutDiameter = 6.3
hole.HoleCutCountersinkAngle = 90
hole.Reversed = True
doc.recompute()

fillet = body.newObject("PartDesign::Fillet", "Fillet")
fillet.Base = (hole, edges_at(hole, [(33.157, 1.75, 63.157), (23.157, 1.75, 73.157)]))
fillet.Radius = 4
doc.recompute()

mirrored5 = body.newObject("PartDesign::Mirrored", "Mirrored004")
mirrored5.Originals = [pad3]
mirrored5.MirrorPlane = (doc.getObject("XY_Plane"), [""])
body.Tip = mirrored5

sketch14 = body.newObject("Sketcher::SketchObject", "Sketch013")
sketch14.Placement = App.Placement(App.Vector(42.5, 0, -42.5), App.Rotation(App.Vector(-0.707106781, 0, -0.707106781), App.Vector(0, 0.999999999, 0), App.Vector(0.707106781, 0, -0.707106781), "ZXY"))
sketch14.addGeometry(Part.LineSegment(App.Vector(21.2, 3.5, 0), App.Vector(21.2, 0, 0)), False)
sketch14.addGeometry(Part.LineSegment(App.Vector(21.2, 0, 0), App.Vector(35.4, 0, 0)), False)
sketch14.addGeometry(Part.LineSegment(App.Vector(35.4, 0, 0), App.Vector(35.4, 3.5, 0)), False)
sketch14.addGeometry(Part.LineSegment(App.Vector(35.4, 3.5, 0), App.Vector(21.2, 3.5, 0)), False)
sketch14.addConstraint(Sketcher.Constraint("Coincident", 0, 2, 1, 1))
sketch14.addConstraint(Sketcher.Constraint("Coincident", 1, 2, 2, 1))
sketch14.addConstraint(Sketcher.Constraint("Coincident", 2, 2, 3, 1))
sketch14.addConstraint(Sketcher.Constraint("Coincident", 3, 2, 0, 1))
sketch14.addConstraint(Sketcher.Constraint("Vertical", 0))
sketch14.addConstraint(Sketcher.Constraint("Horizontal", 1))
sketch14.addConstraint(Sketcher.Constraint("Vertical", 2))
sketch14.addConstraint(Sketcher.Constraint("Horizontal", 3))
sketch14.addConstraint(Sketcher.Constraint("PointOnObject", 0, 2, -1))
sketch14.addConstraint(Sketcher.Constraint("DistanceY", 0, 2, 0, 1, Q("3.5 mm")))
sketch14.addConstraint(Sketcher.Constraint("DistanceX", 1, 1, 1, 2, Q("14.142136 mm")))
sketch14.addConstraint(Sketcher.Constraint("DistanceX", -1, 1, 1, 2, Q("35.355339 mm")))
pad4 = body.newObject("PartDesign::Pad", "Pad003")
pad4.Profile = sketch14
pad4.Length = 8
doc.recompute()

fillet2 = body.newObject("PartDesign::Fillet", "Fillet001")
fillet2.Base = (pad4, edges_at(pad4, [(33.157, 1.75, -63.157), (23.157, 1.75, -73.157)]))
fillet2.Radius = 4
doc.recompute()

fillet3 = body.newObject("PartDesign::Fillet", "Fillet002")
fillet3.Base = (fillet2, edges_at(fillet2, [
    (-33.157, 1.75, 63.157),
    (-23.157, 1.75, 73.157),
    (-33.157, 1.75, -63.157),
    (-23.157, 1.75, -73.157),
]))
fillet3.Radius = 4

sketch15 = body.newObject("Sketcher::SketchObject", "Sketch014")
sketch15.AttachmentSupport = (doc.getObject("XZ_Plane"), [""])
sketch15.MapMode = "FlatFace"
sketch15.AttachmentOffset = App.Placement(App.Vector(0, 0, -3.5), App.Rotation())
sketch15.addGeometry(Part.Circle(App.Vector(-25.3, 65.3, 0), App.Vector(0, 0, 1), 1.6), False)
sketch15.addGeometry(Part.Circle(App.Vector(-25.3, -65.3, 0), App.Vector(0, 0, 1), 1.6), False)
sketch15.addGeometry(Part.Circle(App.Vector(25.3, -65.3, 0), App.Vector(0, 0, 1), 1.6), False)
sketch15.addConstraint(Sketcher.Constraint("Equal", 0, 1))
sketch15.addConstraint(Sketcher.Constraint("Equal", 1, 2))
sketch15.addConstraint(Sketcher.Constraint("Symmetric", 1, 3, 2, 3, -2))
sketch15.addConstraint(Sketcher.Constraint("Diameter", 0, Q("3.2 mm")))
sketch15.addConstraint(Sketcher.Constraint("DistanceX", 1, 3, 0, 3, Q("0.00151 mm")))
sketch15.addConstraint(Sketcher.Constraint("DistanceX", 0, 3, -1, 1, Q("25.327672 mm")))
sketch15.addConstraint(Sketcher.Constraint("DistanceY", -1, 1, 0, 3, Q("65.329182 mm")))
sketch15.addConstraint(Sketcher.Constraint("DistanceY", 1, 3, -1, 1, Q("65.327672 mm")))
doc.recompute()
hole2 = body.newObject("PartDesign::Hole", "Hole001")
hole2.Profile = sketch15
hole2.ThreadType = "None"
hole2.Diameter = 3.2
hole2.DepthType = "ThroughAll"
hole2.HoleCutType = "Countersink"
hole2.HoleCutDiameter = 6.3
hole2.HoleCutCountersinkAngle = 90
hole2.Reversed = True

sketch16 = body.newObject("Sketcher::SketchObject", "Sketch015")
sketch16.AttachmentSupport = (doc.getObject("YZ_Plane"), [""])
sketch16.MapMode = "FlatFace"
sketch16.AttachmentOffset = App.Placement(App.Vector(0, 0, 27.5), App.Rotation())
sketch16.addGeometry(Part.LineSegment(App.Vector(27, 54, 0), App.Vector(4, 54, 0)), False)
sketch16.addGeometry(Part.LineSegment(App.Vector(4, 54, 0), App.Vector(4, 49, 0)), False)
sketch16.addGeometry(Part.LineSegment(App.Vector(4, 49, 0), App.Vector(27, 49, 0)), False)
sketch16.addGeometry(Part.LineSegment(App.Vector(27, 49, 0), App.Vector(27, 54, 0)), False)
sketch16.addGeometry(Part.LineSegment(App.Vector(27, 47, 0), App.Vector(4, 47, 0)), False)
sketch16.addGeometry(Part.LineSegment(App.Vector(4, 47, 0), App.Vector(4, 41, 0)), False)
sketch16.addGeometry(Part.LineSegment(App.Vector(4, 41, 0), App.Vector(27, 41, 0)), False)
sketch16.addGeometry(Part.LineSegment(App.Vector(27, 41, 0), App.Vector(27, 47, 0)), False)
sketch16.addGeometry(Part.LineSegment(App.Vector(27, -41, 0), App.Vector(4, -41, 0)), False)
sketch16.addGeometry(Part.LineSegment(App.Vector(4, -41, 0), App.Vector(4, -47, 0)), False)
sketch16.addGeometry(Part.LineSegment(App.Vector(4, -47, 0), App.Vector(27, -47, 0)), False)
sketch16.addGeometry(Part.LineSegment(App.Vector(27, -47, 0), App.Vector(27, -41, 0)), False)
sketch16.addGeometry(Part.LineSegment(App.Vector(27, -49, 0), App.Vector(4, -49, 0)), False)
sketch16.addGeometry(Part.LineSegment(App.Vector(4, -49, 0), App.Vector(4, -54, 0)), False)
sketch16.addGeometry(Part.LineSegment(App.Vector(4, -54, 0), App.Vector(27, -54, 0)), False)
sketch16.addGeometry(Part.LineSegment(App.Vector(27, -54, 0), App.Vector(27, -49, 0)), False)
sketch16.addConstraint(Sketcher.Constraint("Coincident", 0, 2, 1, 1))
sketch16.addConstraint(Sketcher.Constraint("Coincident", 1, 2, 2, 1))
sketch16.addConstraint(Sketcher.Constraint("Coincident", 2, 2, 3, 1))
sketch16.addConstraint(Sketcher.Constraint("Coincident", 3, 2, 0, 1))
sketch16.addConstraint(Sketcher.Constraint("Coincident", 4, 2, 5, 1))
sketch16.addConstraint(Sketcher.Constraint("Coincident", 5, 2, 6, 1))
sketch16.addConstraint(Sketcher.Constraint("Coincident", 6, 2, 7, 1))
sketch16.addConstraint(Sketcher.Constraint("Coincident", 7, 2, 4, 1))
sketch16.addConstraint(Sketcher.Constraint("Coincident", 8, 2, 9, 1))
sketch16.addConstraint(Sketcher.Constraint("Coincident", 9, 2, 10, 1))
sketch16.addConstraint(Sketcher.Constraint("Coincident", 10, 2, 11, 1))
sketch16.addConstraint(Sketcher.Constraint("Coincident", 11, 2, 8, 1))
sketch16.addConstraint(Sketcher.Constraint("Coincident", 12, 2, 13, 1))
sketch16.addConstraint(Sketcher.Constraint("Coincident", 13, 2, 14, 1))
sketch16.addConstraint(Sketcher.Constraint("Coincident", 14, 2, 15, 1))
sketch16.addConstraint(Sketcher.Constraint("Coincident", 15, 2, 12, 1))
sketch16.addConstraint(Sketcher.Constraint("Horizontal", 0))
sketch16.addConstraint(Sketcher.Constraint("Vertical", 1))
sketch16.addConstraint(Sketcher.Constraint("Horizontal", 2))
sketch16.addConstraint(Sketcher.Constraint("Vertical", 3))
sketch16.addConstraint(Sketcher.Constraint("Horizontal", 4))
sketch16.addConstraint(Sketcher.Constraint("Vertical", 5))
sketch16.addConstraint(Sketcher.Constraint("Horizontal", 6))
sketch16.addConstraint(Sketcher.Constraint("Vertical", 7))
sketch16.addConstraint(Sketcher.Constraint("Horizontal", 8))
sketch16.addConstraint(Sketcher.Constraint("Vertical", 9))
sketch16.addConstraint(Sketcher.Constraint("Horizontal", 10))
sketch16.addConstraint(Sketcher.Constraint("Vertical", 11))
sketch16.addConstraint(Sketcher.Constraint("Horizontal", 12))
sketch16.addConstraint(Sketcher.Constraint("Vertical", 13))
sketch16.addConstraint(Sketcher.Constraint("Horizontal", 14))
sketch16.addConstraint(Sketcher.Constraint("Vertical", 15))
sketch16.addConstraint(Sketcher.Constraint("Symmetric", 5, 2, 8, 2, -1))
sketch16.addConstraint(Sketcher.Constraint("Symmetric", 7, 2, 10, 2, -1))
sketch16.addConstraint(Sketcher.Constraint("Symmetric", 1, 2, 12, 2, -1))
sketch16.addConstraint(Sketcher.Constraint("Symmetric", 3, 2, 14, 2, -1))
sketch16.addConstraint(Sketcher.Constraint("Vertical", 1, 2, 4, 2))
sketch16.addConstraint(Sketcher.Constraint("Vertical", 3, 2, 6, 2))
sketch16.addConstraint(Sketcher.Constraint("Equal", 3, 5))
sketch16.addConstraint(Sketcher.Constraint("DistanceX", 0, 2, 0, 1, Q("23.5 mm")))
sketch16.addConstraint(Sketcher.Constraint("DistanceX", -1, 1, 2, 2, Q("27 mm")))
sketch16.addConstraint(Sketcher.Constraint("DistanceY", -1, 1, 5, 2, Q("41 mm")))
sketch16.addConstraint(Sketcher.Constraint("DistanceY", 4, 2, 1, 2, Q("2 mm")))
sketch16.addConstraint(Sketcher.Constraint("DistanceY", 1, 2, 1, 1, Q("5.75 mm")))
pocket10 = body.newObject("PartDesign::Pocket", "Pocket009")
pocket10.Profile = sketch16
pocket10.Length = 2.5
doc.recompute()

mirrored6 = body.newObject("PartDesign::Mirrored", "Mirrored005")
mirrored6.Originals = [pocket10]
mirrored6.MirrorPlane = (doc.getObject("YZ_Plane"), [""])
body.Tip = mirrored6

doc.recompute()
